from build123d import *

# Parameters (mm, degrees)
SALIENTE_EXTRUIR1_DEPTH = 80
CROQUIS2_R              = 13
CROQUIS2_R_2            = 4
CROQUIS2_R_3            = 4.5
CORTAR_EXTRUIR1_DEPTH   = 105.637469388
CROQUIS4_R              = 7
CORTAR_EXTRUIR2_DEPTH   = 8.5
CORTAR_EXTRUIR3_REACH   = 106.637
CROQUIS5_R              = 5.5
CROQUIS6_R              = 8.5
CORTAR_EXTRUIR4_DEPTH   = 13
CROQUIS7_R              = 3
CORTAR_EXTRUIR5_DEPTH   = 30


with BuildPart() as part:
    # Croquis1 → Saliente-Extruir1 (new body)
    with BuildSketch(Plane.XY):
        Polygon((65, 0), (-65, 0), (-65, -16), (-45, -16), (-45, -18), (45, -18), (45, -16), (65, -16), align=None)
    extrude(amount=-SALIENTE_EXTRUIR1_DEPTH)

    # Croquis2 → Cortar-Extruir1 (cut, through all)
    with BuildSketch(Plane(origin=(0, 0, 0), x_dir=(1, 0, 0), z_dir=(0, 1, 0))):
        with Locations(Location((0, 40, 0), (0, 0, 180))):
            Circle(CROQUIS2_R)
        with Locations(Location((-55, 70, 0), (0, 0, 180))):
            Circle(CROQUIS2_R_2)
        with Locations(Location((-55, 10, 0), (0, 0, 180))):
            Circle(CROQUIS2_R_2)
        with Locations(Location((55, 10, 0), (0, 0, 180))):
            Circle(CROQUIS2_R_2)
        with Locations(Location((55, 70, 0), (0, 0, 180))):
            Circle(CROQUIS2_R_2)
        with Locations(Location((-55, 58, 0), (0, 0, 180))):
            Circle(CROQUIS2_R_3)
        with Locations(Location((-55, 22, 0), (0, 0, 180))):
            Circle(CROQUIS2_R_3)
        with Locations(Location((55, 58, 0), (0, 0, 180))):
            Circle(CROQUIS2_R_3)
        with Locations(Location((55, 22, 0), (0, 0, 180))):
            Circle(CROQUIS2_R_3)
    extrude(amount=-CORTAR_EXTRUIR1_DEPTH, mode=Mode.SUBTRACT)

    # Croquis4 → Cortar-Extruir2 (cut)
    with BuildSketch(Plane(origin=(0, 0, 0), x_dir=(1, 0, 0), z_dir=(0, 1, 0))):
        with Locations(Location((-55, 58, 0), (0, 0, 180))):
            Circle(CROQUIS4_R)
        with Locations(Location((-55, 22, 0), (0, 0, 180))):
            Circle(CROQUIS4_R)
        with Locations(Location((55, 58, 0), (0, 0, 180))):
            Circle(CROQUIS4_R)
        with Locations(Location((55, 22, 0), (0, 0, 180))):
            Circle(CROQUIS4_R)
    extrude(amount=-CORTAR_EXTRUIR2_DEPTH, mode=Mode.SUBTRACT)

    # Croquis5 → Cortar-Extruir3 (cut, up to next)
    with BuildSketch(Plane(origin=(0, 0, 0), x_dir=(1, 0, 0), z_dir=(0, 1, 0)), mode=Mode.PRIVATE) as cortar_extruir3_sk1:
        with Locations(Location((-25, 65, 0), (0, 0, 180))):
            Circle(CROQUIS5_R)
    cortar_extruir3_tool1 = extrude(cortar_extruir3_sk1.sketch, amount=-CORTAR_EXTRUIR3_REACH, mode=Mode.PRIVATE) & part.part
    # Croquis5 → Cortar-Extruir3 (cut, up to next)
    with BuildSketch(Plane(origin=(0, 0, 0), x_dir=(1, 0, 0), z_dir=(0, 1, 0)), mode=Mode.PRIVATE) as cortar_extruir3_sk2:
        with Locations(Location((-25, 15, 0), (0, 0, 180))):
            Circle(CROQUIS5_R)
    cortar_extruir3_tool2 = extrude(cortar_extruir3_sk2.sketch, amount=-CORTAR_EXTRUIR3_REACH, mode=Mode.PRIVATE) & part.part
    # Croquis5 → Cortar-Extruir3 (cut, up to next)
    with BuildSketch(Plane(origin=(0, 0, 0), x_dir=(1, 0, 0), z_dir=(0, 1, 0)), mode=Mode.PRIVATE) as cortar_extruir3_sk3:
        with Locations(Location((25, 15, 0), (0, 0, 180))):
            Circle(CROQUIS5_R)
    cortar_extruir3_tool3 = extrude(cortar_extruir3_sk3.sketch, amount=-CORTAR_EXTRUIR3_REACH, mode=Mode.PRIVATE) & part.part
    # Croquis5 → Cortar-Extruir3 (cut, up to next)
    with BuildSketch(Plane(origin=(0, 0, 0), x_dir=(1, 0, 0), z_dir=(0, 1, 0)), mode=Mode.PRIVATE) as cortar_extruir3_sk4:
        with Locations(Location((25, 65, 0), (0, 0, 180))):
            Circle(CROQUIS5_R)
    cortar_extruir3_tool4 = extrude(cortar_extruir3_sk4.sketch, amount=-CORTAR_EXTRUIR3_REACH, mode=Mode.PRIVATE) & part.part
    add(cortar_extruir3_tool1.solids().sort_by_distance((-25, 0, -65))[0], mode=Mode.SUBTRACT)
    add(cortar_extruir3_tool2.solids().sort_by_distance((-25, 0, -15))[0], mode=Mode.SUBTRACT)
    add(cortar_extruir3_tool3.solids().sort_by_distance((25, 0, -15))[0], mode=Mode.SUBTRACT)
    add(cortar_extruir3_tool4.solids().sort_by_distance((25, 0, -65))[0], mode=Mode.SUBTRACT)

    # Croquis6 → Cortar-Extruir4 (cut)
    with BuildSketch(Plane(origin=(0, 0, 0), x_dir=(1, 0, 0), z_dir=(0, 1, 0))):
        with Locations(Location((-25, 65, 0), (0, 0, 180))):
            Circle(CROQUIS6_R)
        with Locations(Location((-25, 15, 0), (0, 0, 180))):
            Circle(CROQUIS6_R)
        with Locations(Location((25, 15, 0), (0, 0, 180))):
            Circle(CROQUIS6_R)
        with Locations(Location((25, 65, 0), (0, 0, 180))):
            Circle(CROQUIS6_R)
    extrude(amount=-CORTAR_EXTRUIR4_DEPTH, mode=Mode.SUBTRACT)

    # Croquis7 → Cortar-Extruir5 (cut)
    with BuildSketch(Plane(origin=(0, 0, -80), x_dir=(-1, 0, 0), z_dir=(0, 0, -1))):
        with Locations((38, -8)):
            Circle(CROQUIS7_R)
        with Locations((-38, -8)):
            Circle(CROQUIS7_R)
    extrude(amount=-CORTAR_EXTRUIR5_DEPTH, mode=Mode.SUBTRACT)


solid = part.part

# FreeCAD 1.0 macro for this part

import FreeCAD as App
import Part
import Sketcher

V = App.Vector


def add_polygon(sketch, points):
    """Adds a closed chain of lines whose ends are joined by coincident constraints."""
    first, n = sketch.GeometryCount, len(points)
    for a, b in zip(points, points[1:] + points[:1]):
        sketch.addGeometry(Part.LineSegment(App.Vector(*a, 0), App.Vector(*b, 0)), False)
    for i in range(n):
        sketch.addConstraint(Sketcher.Constraint("Coincident", first + i, 2, first + (i + 1) % n, 1))

doc = App.newDocument("Part")
params = doc.addObject("Spreadsheet::Sheet", "Params")
for row, (alias, value) in enumerate([
    ("sketch1_width", "130 mm"),
    ("sketch1_width2", "20 mm"),
    ("sketch1_height", "16 mm"),
    ("sketch1_height2", "2 mm"),
    ("pad1_length", "80 mm"),
    ("sketch2_diameter", "26 mm"),
    ("sketch2_diameter2", "8 mm"),
    ("sketch2_diameter3", "9 mm"),
    ("sketch3_diameter", "14 mm"),
    ("pocket2_length", "8.5 mm"),
    ("sketch4_diameter", "11 mm"),
    ("sketch5_diameter", "11 mm"),
    ("sketch6_diameter", "11 mm"),
    ("sketch7_diameter", "11 mm"),
    ("sketch8_diameter", "17 mm"),
    ("pocket7_length", "13 mm"),
    ("sketch9_diameter", "6 mm"),
    ("pocket8_length", "30 mm"),
], start=1):
    params.set(f"A{row}", alias)
    params.set(f"B{row}", "=" + value)
    params.setAlias(f"B{row}", alias)

body = doc.addObject("PartDesign::Body", "Body")

# Sketch on XY plane
sketch1 = body.newObject("Sketcher::SketchObject", "Sketch")
sketch1.AttachmentSupport = (doc.getObject("XY_Plane"), [""])
sketch1.MapMode = "FlatFace"
add_polygon(sketch1, [(65, 0), (-65, 0), (-65, -16), (-45, -16), (-45, -18), (45, -18), (45, -16), (65, -16)])  # lines 0-7
sketch1.addConstraint(Sketcher.Constraint("Horizontal", 0))
sketch1.addConstraint(Sketcher.Constraint("Vertical", 1))
sketch1.addConstraint(Sketcher.Constraint("Horizontal", 2))
sketch1.addConstraint(Sketcher.Constraint("Vertical", 3))
sketch1.addConstraint(Sketcher.Constraint("Horizontal", 4))
sketch1.addConstraint(Sketcher.Constraint("Vertical", 5))
sketch1.addConstraint(Sketcher.Constraint("Horizontal", 6))
sketch1.addConstraint(Sketcher.Constraint("Vertical", 7))
sketch1.addConstraint(Sketcher.Constraint("Symmetric", 0, 2, 7, 2, -1, 1))
sketch1.addConstraint(Sketcher.Constraint("Symmetric", 2, 2, 5, 2, -2))
sketch1.addConstraint(Sketcher.Constraint("DistanceX", 0, 2, 0, 1, 130.0))
sketch1.addConstraint(Sketcher.Constraint("DistanceX", 2, 1, 2, 2, 20.0))
sketch1.addConstraint(Sketcher.Constraint("DistanceY", 1, 2, 1, 1, 16.0))
sketch1.addConstraint(Sketcher.Constraint("DistanceY", 3, 2, 3, 1, 2.0))
sketch1.setExpression("Constraints[18]", "Params.sketch1_width")
sketch1.setExpression("Constraints[19]", "Params.sketch1_width2")
sketch1.setExpression("Constraints[20]", "Params.sketch1_height")
sketch1.setExpression("Constraints[21]", "Params.sketch1_height2")
pad1 = body.newObject("PartDesign::Pad", "Pad")
pad1.Profile = sketch1
pad1.setExpression("Length", "Params.pad1_length")
pad1.Reversed = True

# Sketch on XZ plane
sketch2 = body.newObject("Sketcher::SketchObject", "Sketch001")
sketch2.AttachmentSupport = (doc.getObject("XZ_Plane"), [""])
sketch2.MapMode = "FlatFace"
sketch2.addGeometry(Part.Circle(V(0, -40, 0), V(0, 0, 1), 13), False)
sketch2.addGeometry(Part.Circle(V(-55, -70, 0), V(0, 0, 1), 4), False)
sketch2.addGeometry(Part.Circle(V(-55, -10, 0), V(0, 0, 1), 4), False)
sketch2.addGeometry(Part.Circle(V(55, -10, 0), V(0, 0, 1), 4), False)
sketch2.addGeometry(Part.Circle(V(55, -70, 0), V(0, 0, 1), 4), False)
sketch2.addGeometry(Part.Circle(V(-55, -58, 0), V(0, 0, 1), 4.5), False)
sketch2.addGeometry(Part.Circle(V(-55, -22, 0), V(0, 0, 1), 4.5), False)
sketch2.addGeometry(Part.Circle(V(55, -58, 0), V(0, 0, 1), 4.5), False)
sketch2.addGeometry(Part.Circle(V(55, -22, 0), V(0, 0, 1), 4.5), False)
sketch2.addConstraint(Sketcher.Constraint("Equal", 1, 2))
sketch2.addConstraint(Sketcher.Constraint("Equal", 2, 3))
sketch2.addConstraint(Sketcher.Constraint("Equal", 3, 4))
sketch2.addConstraint(Sketcher.Constraint("Equal", 5, 6))
sketch2.addConstraint(Sketcher.Constraint("Equal", 6, 7))
sketch2.addConstraint(Sketcher.Constraint("Equal", 7, 8))
sketch2.addConstraint(Sketcher.Constraint("Symmetric", 2, 3, 3, 3, -2))
sketch2.addConstraint(Sketcher.Constraint("Symmetric", 1, 3, 4, 3, -2))
sketch2.addConstraint(Sketcher.Constraint("Symmetric", 5, 3, 7, 3, -2))
sketch2.addConstraint(Sketcher.Constraint("Symmetric", 6, 3, 8, 3, -2))
sketch2.addConstraint(Sketcher.Constraint("PointOnObject", 0, 3, -2))
sketch2.addConstraint(Sketcher.Constraint("Vertical", 1, 3, 2, 3))
sketch2.addConstraint(Sketcher.Constraint("Vertical", 2, 3, 5, 3))
sketch2.addConstraint(Sketcher.Constraint("Vertical", 5, 3, 6, 3))
sketch2.addConstraint(Sketcher.Constraint("Diameter", 0, 26.0))
sketch2.addConstraint(Sketcher.Constraint("Diameter", 1, 8.0))
sketch2.addConstraint(Sketcher.Constraint("Diameter", 5, 9.0))
sketch2.addConstraint(Sketcher.Constraint("DistanceY", 0, 3, -1, 1, 40.0))
sketch2.addConstraint(Sketcher.Constraint("DistanceX", 1, 3, -1, 1, 55.0))
sketch2.addConstraint(Sketcher.Constraint("DistanceY", 1, 3, -1, 1, 70.0))
sketch2.addConstraint(Sketcher.Constraint("DistanceY", 2, 3, -1, 1, 10.0))
sketch2.addConstraint(Sketcher.Constraint("DistanceY", 5, 3, -1, 1, 58.0))
sketch2.addConstraint(Sketcher.Constraint("DistanceY", 6, 3, -1, 1, 22.0))
sketch2.setExpression("Constraints[14]", "Params.sketch2_diameter")
sketch2.setExpression("Constraints[15]", "Params.sketch2_diameter2")
sketch2.setExpression("Constraints[16]", "Params.sketch2_diameter3")
pocket1 = body.newObject("PartDesign::Pocket", "Pocket")
pocket1.Profile = sketch2
pocket1.Type = "ThroughAll"
pocket1.Reversed = True

# Sketch on XZ plane
sketch3 = body.newObject("Sketcher::SketchObject", "Sketch002")
sketch3.AttachmentSupport = (doc.getObject("XZ_Plane"), [""])
sketch3.MapMode = "FlatFace"
sketch3.addGeometry(Part.Circle(V(-55, -58, 0), V(0, 0, 1), 7), False)
sketch3.addGeometry(Part.Circle(V(-55, -22, 0), V(0, 0, 1), 7), False)
sketch3.addGeometry(Part.Circle(V(55, -58, 0), V(0, 0, 1), 7), False)
sketch3.addGeometry(Part.Circle(V(55, -22, 0), V(0, 0, 1), 7), False)
sketch3.addConstraint(Sketcher.Constraint("Equal", 0, 1))
sketch3.addConstraint(Sketcher.Constraint("Equal", 1, 2))
sketch3.addConstraint(Sketcher.Constraint("Equal", 2, 3))
sketch3.addConstraint(Sketcher.Constraint("Symmetric", 0, 3, 2, 3, -2))
sketch3.addConstraint(Sketcher.Constraint("Symmetric", 1, 3, 3, 3, -2))
sketch3.addConstraint(Sketcher.Constraint("Vertical", 0, 3, 1, 3))
sketch3.addConstraint(Sketcher.Constraint("Diameter", 0, 14.0))
sketch3.addConstraint(Sketcher.Constraint("DistanceX", 0, 3, -1, 1, 55.0))
sketch3.addConstraint(Sketcher.Constraint("DistanceY", 0, 3, -1, 1, 58.0))
sketch3.addConstraint(Sketcher.Constraint("DistanceY", 1, 3, -1, 1, 22.0))
sketch3.setExpression("Constraints[6]", "Params.sketch3_diameter")
pocket2 = body.newObject("PartDesign::Pocket", "Pocket001")
pocket2.Profile = sketch3
pocket2.setExpression("Length", "Params.pocket2_length")
pocket2.Reversed = True

# Sketch on XZ plane
sketch4 = body.newObject("Sketcher::SketchObject", "Sketch003")
sketch4.AttachmentSupport = (doc.getObject("XZ_Plane"), [""])
sketch4.MapMode = "FlatFace"
sketch4.addGeometry(Part.Circle(V(-25, -65, 0), V(0, 0, 1), 6), False)
sketch4.addConstraint(Sketcher.Constraint("Diameter", 0, 11.0))
sketch4.addConstraint(Sketcher.Constraint("DistanceX", 0, 3, -1, 1, 25.0))
sketch4.addConstraint(Sketcher.Constraint("DistanceY", 0, 3, -1, 1, 65.0))
sketch4.setExpression("Constraints[0]", "Params.sketch4_diameter")
pocket3 = body.newObject("PartDesign::Pocket", "Pocket002")
pocket3.Profile = sketch4
pocket3.Type = "UpToFirst"
pocket3.Reversed = True

# Sketch on XZ plane
sketch5 = body.newObject("Sketcher::SketchObject", "Sketch004")
sketch5.AttachmentSupport = (doc.getObject("XZ_Plane"), [""])
sketch5.MapMode = "FlatFace"
sketch5.addGeometry(Part.Circle(V(-25, -15, 0), V(0, 0, 1), 6), False)
sketch5.addConstraint(Sketcher.Constraint("Diameter", 0, 11.0))
sketch5.addConstraint(Sketcher.Constraint("DistanceX", 0, 3, -1, 1, 25.0))
sketch5.addConstraint(Sketcher.Constraint("DistanceY", 0, 3, -1, 1, 15.0))
sketch5.setExpression("Constraints[0]", "Params.sketch5_diameter")
pocket4 = body.newObject("PartDesign::Pocket", "Pocket003")
pocket4.Profile = sketch5
pocket4.Type = "UpToFirst"
pocket4.Reversed = True

# Sketch on XZ plane
sketch6 = body.newObject("Sketcher::SketchObject", "Sketch005")
sketch6.AttachmentSupport = (doc.getObject("XZ_Plane"), [""])
sketch6.MapMode = "FlatFace"
sketch6.addGeometry(Part.Circle(V(25, -15, 0), V(0, 0, 1), 6), False)
sketch6.addConstraint(Sketcher.Constraint("Diameter", 0, 11.0))
sketch6.addConstraint(Sketcher.Constraint("DistanceX", -1, 1, 0, 3, 25.0))
sketch6.addConstraint(Sketcher.Constraint("DistanceY", 0, 3, -1, 1, 15.0))
sketch6.setExpression("Constraints[0]", "Params.sketch6_diameter")
pocket5 = body.newObject("PartDesign::Pocket", "Pocket004")
pocket5.Profile = sketch6
pocket5.Type = "UpToFirst"
pocket5.Reversed = True

# Sketch on XZ plane
sketch7 = body.newObject("Sketcher::SketchObject", "Sketch006")
sketch7.AttachmentSupport = (doc.getObject("XZ_Plane"), [""])
sketch7.MapMode = "FlatFace"
sketch7.addGeometry(Part.Circle(V(25, -65, 0), V(0, 0, 1), 6), False)
sketch7.addConstraint(Sketcher.Constraint("Diameter", 0, 11.0))
sketch7.addConstraint(Sketcher.Constraint("DistanceX", -1, 1, 0, 3, 25.0))
sketch7.addConstraint(Sketcher.Constraint("DistanceY", 0, 3, -1, 1, 65.0))
sketch7.setExpression("Constraints[0]", "Params.sketch7_diameter")
pocket6 = body.newObject("PartDesign::Pocket", "Pocket005")
pocket6.Profile = sketch7
pocket6.Type = "UpToFirst"
pocket6.Reversed = True

# Sketch on XZ plane
sketch8 = body.newObject("Sketcher::SketchObject", "Sketch007")
sketch8.AttachmentSupport = (doc.getObject("XZ_Plane"), [""])
sketch8.MapMode = "FlatFace"
sketch8.addGeometry(Part.Circle(V(-25, -65, 0), V(0, 0, 1), 8), False)
sketch8.addGeometry(Part.Circle(V(-25, -15, 0), V(0, 0, 1), 8), False)
sketch8.addGeometry(Part.Circle(V(25, -15, 0), V(0, 0, 1), 8), False)
sketch8.addGeometry(Part.Circle(V(25, -65, 0), V(0, 0, 1), 8), False)
sketch8.addConstraint(Sketcher.Constraint("Equal", 0, 1))
sketch8.addConstraint(Sketcher.Constraint("Equal", 1, 2))
sketch8.addConstraint(Sketcher.Constraint("Equal", 2, 3))
sketch8.addConstraint(Sketcher.Constraint("Symmetric", 1, 3, 2, 3, -2))
sketch8.addConstraint(Sketcher.Constraint("Symmetric", 0, 3, 3, 3, -2))
sketch8.addConstraint(Sketcher.Constraint("Vertical", 0, 3, 1, 3))
sketch8.addConstraint(Sketcher.Constraint("Diameter", 0, 17.0))
sketch8.addConstraint(Sketcher.Constraint("DistanceX", 0, 3, -1, 1, 25.0))
sketch8.addConstraint(Sketcher.Constraint("DistanceY", 0, 3, -1, 1, 65.0))
sketch8.addConstraint(Sketcher.Constraint("DistanceY", 1, 3, -1, 1, 15.0))
sketch8.setExpression("Constraints[6]", "Params.sketch8_diameter")
pocket7 = body.newObject("PartDesign::Pocket", "Pocket006")
pocket7.Profile = sketch8
pocket7.setExpression("Length", "Params.pocket7_length")
pocket7.Reversed = True

# Sketch on XY plane
sketch9 = body.newObject("Sketcher::SketchObject", "Sketch008")
sketch9.AttachmentSupport = (doc.getObject("XY_Plane"), [""])
sketch9.MapMode = "FlatFace"
sketch9.AttachmentOffset = App.Placement(V(0, 0, -80), App.Rotation())
sketch9.addGeometry(Part.Circle(V(-38, -8, 0), V(0, 0, 1), 3), False)
sketch9.addGeometry(Part.Circle(V(38, -8, 0), V(0, 0, 1), 3), False)
sketch9.addConstraint(Sketcher.Constraint("Equal", 0, 1))
sketch9.addConstraint(Sketcher.Constraint("Symmetric", 0, 3, 1, 3, -2))
sketch9.addConstraint(Sketcher.Constraint("Diameter", 0, 6.0))
sketch9.addConstraint(Sketcher.Constraint("DistanceX", 0, 3, -1, 1, 38.0))
sketch9.addConstraint(Sketcher.Constraint("DistanceY", 0, 3, -1, 1, 8.0))
sketch9.setExpression("Constraints[2]", "Params.sketch9_diameter")
pocket8 = body.newObject("PartDesign::Pocket", "Pocket007")
pocket8.Profile = sketch9
pocket8.setExpression("Length", "Params.pocket8_length")
pocket8.Reversed = True

doc.recompute()
